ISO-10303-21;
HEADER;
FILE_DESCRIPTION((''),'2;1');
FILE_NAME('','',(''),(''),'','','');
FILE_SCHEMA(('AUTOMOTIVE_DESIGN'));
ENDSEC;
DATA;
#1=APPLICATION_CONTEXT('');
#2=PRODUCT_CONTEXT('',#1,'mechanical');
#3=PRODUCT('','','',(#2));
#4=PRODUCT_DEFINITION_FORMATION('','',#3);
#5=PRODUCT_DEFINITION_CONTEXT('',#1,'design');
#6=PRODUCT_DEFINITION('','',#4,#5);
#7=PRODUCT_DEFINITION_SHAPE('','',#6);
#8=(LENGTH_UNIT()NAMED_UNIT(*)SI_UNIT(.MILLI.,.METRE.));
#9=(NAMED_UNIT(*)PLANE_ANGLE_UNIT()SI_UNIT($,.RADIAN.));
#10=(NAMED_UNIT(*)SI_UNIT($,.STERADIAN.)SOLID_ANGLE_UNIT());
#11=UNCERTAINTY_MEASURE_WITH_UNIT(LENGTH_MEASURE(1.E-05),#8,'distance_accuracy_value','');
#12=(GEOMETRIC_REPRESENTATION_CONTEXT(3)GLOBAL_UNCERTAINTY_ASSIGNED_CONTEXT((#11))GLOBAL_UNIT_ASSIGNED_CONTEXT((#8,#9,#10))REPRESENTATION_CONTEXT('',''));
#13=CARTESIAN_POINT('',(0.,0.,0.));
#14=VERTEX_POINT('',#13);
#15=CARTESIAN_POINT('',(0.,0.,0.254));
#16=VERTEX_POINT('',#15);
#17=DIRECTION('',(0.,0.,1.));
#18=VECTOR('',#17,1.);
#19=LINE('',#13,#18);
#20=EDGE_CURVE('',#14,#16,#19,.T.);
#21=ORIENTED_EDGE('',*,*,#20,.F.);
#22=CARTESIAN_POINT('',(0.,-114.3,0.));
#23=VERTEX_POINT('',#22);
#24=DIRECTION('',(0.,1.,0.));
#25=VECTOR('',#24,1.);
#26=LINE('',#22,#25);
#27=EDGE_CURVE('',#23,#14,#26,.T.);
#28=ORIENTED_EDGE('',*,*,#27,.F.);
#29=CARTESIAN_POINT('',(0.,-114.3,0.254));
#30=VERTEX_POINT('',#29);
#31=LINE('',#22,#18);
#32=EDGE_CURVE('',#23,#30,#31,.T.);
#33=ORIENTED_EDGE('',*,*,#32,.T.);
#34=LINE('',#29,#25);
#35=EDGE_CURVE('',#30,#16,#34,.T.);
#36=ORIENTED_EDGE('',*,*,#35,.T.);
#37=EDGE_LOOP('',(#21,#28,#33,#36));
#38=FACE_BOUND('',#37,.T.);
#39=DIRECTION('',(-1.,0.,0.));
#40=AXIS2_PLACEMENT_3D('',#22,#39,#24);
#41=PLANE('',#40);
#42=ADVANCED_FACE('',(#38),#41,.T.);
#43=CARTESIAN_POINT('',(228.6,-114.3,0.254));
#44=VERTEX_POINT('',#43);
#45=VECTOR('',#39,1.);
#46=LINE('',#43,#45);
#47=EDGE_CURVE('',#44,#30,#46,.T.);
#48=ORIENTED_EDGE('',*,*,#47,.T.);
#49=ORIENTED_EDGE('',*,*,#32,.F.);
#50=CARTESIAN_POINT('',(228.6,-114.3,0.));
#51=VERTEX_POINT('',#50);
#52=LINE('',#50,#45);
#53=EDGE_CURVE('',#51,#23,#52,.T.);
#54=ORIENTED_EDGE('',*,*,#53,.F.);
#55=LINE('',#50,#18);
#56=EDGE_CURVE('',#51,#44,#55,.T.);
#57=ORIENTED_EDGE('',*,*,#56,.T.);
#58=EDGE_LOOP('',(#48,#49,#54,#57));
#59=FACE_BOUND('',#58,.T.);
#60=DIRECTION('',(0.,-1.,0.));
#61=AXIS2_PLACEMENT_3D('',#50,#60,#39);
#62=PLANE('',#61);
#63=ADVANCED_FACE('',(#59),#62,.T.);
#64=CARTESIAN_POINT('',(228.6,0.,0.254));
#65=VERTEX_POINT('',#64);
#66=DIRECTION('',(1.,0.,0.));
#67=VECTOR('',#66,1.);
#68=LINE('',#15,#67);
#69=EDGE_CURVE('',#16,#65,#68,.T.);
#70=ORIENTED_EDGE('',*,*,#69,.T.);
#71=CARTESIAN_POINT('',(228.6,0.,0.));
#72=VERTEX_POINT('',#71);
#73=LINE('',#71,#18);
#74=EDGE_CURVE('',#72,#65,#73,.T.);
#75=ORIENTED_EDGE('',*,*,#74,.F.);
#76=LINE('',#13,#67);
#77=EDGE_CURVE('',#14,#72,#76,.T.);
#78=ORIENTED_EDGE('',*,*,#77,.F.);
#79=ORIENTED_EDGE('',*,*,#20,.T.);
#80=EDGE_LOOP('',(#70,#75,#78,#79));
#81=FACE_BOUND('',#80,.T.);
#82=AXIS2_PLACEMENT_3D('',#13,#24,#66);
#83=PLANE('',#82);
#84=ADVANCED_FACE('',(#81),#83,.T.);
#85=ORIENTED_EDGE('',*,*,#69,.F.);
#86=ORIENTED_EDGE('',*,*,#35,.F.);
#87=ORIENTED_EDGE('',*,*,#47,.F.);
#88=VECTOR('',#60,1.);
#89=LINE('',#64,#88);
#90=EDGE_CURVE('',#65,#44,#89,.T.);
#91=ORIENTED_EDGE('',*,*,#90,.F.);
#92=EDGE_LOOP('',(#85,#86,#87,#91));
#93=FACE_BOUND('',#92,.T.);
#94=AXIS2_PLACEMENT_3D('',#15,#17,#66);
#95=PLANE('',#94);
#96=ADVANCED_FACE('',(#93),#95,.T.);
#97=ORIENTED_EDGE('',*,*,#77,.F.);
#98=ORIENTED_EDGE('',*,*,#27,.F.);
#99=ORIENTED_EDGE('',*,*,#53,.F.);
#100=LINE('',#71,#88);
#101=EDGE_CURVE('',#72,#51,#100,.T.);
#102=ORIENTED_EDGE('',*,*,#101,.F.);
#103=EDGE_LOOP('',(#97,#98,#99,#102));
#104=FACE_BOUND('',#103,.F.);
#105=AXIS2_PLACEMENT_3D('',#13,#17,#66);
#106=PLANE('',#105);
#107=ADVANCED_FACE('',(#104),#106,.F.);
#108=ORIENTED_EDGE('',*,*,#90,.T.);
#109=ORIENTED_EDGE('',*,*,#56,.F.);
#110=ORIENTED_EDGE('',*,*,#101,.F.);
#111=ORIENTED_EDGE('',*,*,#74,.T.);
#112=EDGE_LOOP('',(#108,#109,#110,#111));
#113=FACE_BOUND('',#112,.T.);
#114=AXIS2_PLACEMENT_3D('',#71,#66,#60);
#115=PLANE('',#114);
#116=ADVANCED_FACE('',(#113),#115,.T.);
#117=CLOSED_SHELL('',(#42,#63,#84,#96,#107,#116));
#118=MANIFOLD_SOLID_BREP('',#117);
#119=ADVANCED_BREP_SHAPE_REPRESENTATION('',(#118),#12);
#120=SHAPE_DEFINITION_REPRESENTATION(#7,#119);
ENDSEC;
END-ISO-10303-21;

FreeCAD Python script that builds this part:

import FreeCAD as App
import Part
import Sketcher
from FreeCAD import Vector
Q = App.Units.Quantity

doc = App.newDocument("Part")
params = doc.addObject("Spreadsheet::Sheet", "Params")
for row, (alias, value) in enumerate([
    ("sketch1_width", "9 in"),
    ("sketch1_height", "4.5 in"),
    ("pad1_length", "0.01 in"),
], start=1):
    params.set(f"A{row}", alias)
    params.set(f"B{row}", "=" + value)
    params.setAlias(f"B{row}", alias)

body = doc.addObject("PartDesign::Body", "Body")

sketch1 = body.newObject("Sketcher::SketchObject", "Sketch")
sketch1.AttachmentSupport = (doc.getObject("XY_Plane"), [""])
sketch1.MapMode = "FlatFace"
sketch1.addGeometry(Part.LineSegment(Vector(228.6, 0, 0), Vector(0, 0, 0)), False)
sketch1.addGeometry(Part.LineSegment(Vector(0, 0, 0), Vector(0, -114.3, 0)), False)
sketch1.addGeometry(Part.LineSegment(Vector(0, -114.3, 0), Vector(228.6, -114.3, 0)), False)
sketch1.addGeometry(Part.LineSegment(Vector(228.6, -114.3, 0), Vector(228.6, 0, 0)), False)
sketch1.addConstraint(Sketcher.Constraint("Coincident", 0, 2, 1, 1))
sketch1.addConstraint(Sketcher.Constraint("Coincident", 1, 2, 2, 1))
sketch1.addConstraint(Sketcher.Constraint("Coincident", 2, 2, 3, 1))
sketch1.addConstraint(Sketcher.Constraint("Coincident", 3, 2, 0, 1))
sketch1.addConstraint(Sketcher.Constraint("Horizontal", 0))
sketch1.addConstraint(Sketcher.Constraint("Vertical", 1))
sketch1.addConstraint(Sketcher.Constraint("Horizontal", 2))
sketch1.addConstraint(Sketcher.Constraint("Vertical", 3))
sketch1.addConstraint(Sketcher.Constraint("Coincident", 0, 2, -1, 1))
sketch1.addConstraint(Sketcher.Constraint("DistanceX", 0, 2, 0, 1, Q("9 in")))
sketch1.addConstraint(Sketcher.Constraint("DistanceY", 1, 2, 1, 1, Q("4.5 in")))
sketch1.setExpression("Constraints[9]", "Params.sketch1_width")
sketch1.setExpression("Constraints[10]", "Params.sketch1_height")
pad1 = body.newObject("PartDesign::Pad", "Pad")
pad1.Profile = sketch1
pad1.setExpression("Length", "Params.pad1_length")

doc.recompute()
